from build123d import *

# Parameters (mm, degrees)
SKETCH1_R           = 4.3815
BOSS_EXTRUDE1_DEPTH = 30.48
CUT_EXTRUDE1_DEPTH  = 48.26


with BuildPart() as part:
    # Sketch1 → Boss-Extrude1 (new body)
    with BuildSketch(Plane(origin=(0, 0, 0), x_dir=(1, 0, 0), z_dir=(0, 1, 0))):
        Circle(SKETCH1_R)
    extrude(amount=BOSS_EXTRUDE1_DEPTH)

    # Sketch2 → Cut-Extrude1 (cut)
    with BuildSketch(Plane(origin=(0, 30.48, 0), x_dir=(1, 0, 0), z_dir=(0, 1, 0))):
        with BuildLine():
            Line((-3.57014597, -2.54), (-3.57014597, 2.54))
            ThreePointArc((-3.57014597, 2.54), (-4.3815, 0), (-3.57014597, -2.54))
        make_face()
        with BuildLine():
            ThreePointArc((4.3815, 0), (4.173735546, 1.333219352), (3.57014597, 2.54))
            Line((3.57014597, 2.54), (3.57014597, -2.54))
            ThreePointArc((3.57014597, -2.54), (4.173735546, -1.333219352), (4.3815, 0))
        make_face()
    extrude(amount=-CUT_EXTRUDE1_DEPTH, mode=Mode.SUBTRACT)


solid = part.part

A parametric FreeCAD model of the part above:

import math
import FreeCAD as App
import Part
import Sketcher

V = App.Vector
Q = App.Units.Quantity

doc = App.newDocument("Part")
body = doc.addObject("PartDesign::Body", "Body")

# Sketch on XZ plane
sketch1 = body.newObject("Sketcher::SketchObject", "Sketch")
sketch1.AttachmentSupport = (doc.getObject("XZ_Plane"), [""])
sketch1.MapMode = "FlatFace"
sketch1.addGeometry(Part.Circle(V(0, 0, 0), V(0, 0, 1), 4.4), False)
sketch1.addConstraint([
    Sketcher.Constraint("Coincident", 0, 3, -1, 1),
    Sketcher.Constraint("Diameter", 0, Q("0.345 in")),
])
pad1 = body.newObject("PartDesign::Pad", "Pad")
pad1.Profile = sketch1
pad1.Length = Q("1.2 in")
pad1.Reversed = True

# Sketch on XZ plane
sketch2 = body.newObject("Sketcher::SketchObject", "Sketch001")
sketch2.AttachmentSupport = (doc.getObject("XZ_Plane"), [""])
sketch2.MapMode = "FlatFace"
sketch2.AttachmentOffset = App.Placement(V(0, 0, -1.2 * 25.4), App.Rotation())
sketch2.addGeometry([
    Part.LineSegment(V(-3.6, 2.5, 0), V(-3.6, -2.5, 0)),  # 0
    Part.ArcOfCircle(Part.Circle(V(0, 0, 0), V(0, 0, 1), 4.4), math.radians(145), math.radians(215)),  # 1
    Part.ArcOfCircle(Part.Circle(V(0, 0, 0), V(0, 0, 1), 4.4), math.radians(-35), math.radians(0)),  # 2
    Part.LineSegment(V(3.6, -2.5, 0), V(3.6, 2.5, 0)),  # 3
    Part.ArcOfCircle(Part.Circle(V(0, 0, 0), V(0, 0, 1), 4.4), math.radians(0), math.radians(35)),  # 4
], False)
sketch2.addConstraint([
    Sketcher.Constraint("Coincident", 0, 1, 1, 1),
    Sketcher.Constraint("Coincident", 1, 2, 0, 2),
    Sketcher.Constraint("Coincident", 2, 1, 3, 1),
    Sketcher.Constraint("Coincident", 3, 2, 4, 2),
    Sketcher.Constraint("Tangent", 4, 1, 2, 2),
    Sketcher.Constraint("Vertical", 0),
    Sketcher.Constraint("Vertical", 3),
    Sketcher.Constraint("Coincident", 1, 3, -1, 1),
    Sketcher.Constraint("Coincident", 2, 3, -1, 1),
    Sketcher.Constraint("Equal", 1, 2),
    Sketcher.Constraint("Equal", 2, 4),
    Sketcher.Constraint("PointOnObject", 4, 1, -1),
    Sketcher.Constraint("Horizontal", 1, 2, 2, 1),
    Sketcher.Constraint("DistanceY", 0, 2, 0, 1, Q("0.2 in")),
    Sketcher.Constraint("Radius", 1, Q("0.1725 in")),
])
pocket1 = body.newObject("PartDesign::Pocket", "Pocket")
pocket1.Profile = sketch2
pocket1.Length = Q("1.9 in")
pocket1.Reversed = True

doc.recompute()
